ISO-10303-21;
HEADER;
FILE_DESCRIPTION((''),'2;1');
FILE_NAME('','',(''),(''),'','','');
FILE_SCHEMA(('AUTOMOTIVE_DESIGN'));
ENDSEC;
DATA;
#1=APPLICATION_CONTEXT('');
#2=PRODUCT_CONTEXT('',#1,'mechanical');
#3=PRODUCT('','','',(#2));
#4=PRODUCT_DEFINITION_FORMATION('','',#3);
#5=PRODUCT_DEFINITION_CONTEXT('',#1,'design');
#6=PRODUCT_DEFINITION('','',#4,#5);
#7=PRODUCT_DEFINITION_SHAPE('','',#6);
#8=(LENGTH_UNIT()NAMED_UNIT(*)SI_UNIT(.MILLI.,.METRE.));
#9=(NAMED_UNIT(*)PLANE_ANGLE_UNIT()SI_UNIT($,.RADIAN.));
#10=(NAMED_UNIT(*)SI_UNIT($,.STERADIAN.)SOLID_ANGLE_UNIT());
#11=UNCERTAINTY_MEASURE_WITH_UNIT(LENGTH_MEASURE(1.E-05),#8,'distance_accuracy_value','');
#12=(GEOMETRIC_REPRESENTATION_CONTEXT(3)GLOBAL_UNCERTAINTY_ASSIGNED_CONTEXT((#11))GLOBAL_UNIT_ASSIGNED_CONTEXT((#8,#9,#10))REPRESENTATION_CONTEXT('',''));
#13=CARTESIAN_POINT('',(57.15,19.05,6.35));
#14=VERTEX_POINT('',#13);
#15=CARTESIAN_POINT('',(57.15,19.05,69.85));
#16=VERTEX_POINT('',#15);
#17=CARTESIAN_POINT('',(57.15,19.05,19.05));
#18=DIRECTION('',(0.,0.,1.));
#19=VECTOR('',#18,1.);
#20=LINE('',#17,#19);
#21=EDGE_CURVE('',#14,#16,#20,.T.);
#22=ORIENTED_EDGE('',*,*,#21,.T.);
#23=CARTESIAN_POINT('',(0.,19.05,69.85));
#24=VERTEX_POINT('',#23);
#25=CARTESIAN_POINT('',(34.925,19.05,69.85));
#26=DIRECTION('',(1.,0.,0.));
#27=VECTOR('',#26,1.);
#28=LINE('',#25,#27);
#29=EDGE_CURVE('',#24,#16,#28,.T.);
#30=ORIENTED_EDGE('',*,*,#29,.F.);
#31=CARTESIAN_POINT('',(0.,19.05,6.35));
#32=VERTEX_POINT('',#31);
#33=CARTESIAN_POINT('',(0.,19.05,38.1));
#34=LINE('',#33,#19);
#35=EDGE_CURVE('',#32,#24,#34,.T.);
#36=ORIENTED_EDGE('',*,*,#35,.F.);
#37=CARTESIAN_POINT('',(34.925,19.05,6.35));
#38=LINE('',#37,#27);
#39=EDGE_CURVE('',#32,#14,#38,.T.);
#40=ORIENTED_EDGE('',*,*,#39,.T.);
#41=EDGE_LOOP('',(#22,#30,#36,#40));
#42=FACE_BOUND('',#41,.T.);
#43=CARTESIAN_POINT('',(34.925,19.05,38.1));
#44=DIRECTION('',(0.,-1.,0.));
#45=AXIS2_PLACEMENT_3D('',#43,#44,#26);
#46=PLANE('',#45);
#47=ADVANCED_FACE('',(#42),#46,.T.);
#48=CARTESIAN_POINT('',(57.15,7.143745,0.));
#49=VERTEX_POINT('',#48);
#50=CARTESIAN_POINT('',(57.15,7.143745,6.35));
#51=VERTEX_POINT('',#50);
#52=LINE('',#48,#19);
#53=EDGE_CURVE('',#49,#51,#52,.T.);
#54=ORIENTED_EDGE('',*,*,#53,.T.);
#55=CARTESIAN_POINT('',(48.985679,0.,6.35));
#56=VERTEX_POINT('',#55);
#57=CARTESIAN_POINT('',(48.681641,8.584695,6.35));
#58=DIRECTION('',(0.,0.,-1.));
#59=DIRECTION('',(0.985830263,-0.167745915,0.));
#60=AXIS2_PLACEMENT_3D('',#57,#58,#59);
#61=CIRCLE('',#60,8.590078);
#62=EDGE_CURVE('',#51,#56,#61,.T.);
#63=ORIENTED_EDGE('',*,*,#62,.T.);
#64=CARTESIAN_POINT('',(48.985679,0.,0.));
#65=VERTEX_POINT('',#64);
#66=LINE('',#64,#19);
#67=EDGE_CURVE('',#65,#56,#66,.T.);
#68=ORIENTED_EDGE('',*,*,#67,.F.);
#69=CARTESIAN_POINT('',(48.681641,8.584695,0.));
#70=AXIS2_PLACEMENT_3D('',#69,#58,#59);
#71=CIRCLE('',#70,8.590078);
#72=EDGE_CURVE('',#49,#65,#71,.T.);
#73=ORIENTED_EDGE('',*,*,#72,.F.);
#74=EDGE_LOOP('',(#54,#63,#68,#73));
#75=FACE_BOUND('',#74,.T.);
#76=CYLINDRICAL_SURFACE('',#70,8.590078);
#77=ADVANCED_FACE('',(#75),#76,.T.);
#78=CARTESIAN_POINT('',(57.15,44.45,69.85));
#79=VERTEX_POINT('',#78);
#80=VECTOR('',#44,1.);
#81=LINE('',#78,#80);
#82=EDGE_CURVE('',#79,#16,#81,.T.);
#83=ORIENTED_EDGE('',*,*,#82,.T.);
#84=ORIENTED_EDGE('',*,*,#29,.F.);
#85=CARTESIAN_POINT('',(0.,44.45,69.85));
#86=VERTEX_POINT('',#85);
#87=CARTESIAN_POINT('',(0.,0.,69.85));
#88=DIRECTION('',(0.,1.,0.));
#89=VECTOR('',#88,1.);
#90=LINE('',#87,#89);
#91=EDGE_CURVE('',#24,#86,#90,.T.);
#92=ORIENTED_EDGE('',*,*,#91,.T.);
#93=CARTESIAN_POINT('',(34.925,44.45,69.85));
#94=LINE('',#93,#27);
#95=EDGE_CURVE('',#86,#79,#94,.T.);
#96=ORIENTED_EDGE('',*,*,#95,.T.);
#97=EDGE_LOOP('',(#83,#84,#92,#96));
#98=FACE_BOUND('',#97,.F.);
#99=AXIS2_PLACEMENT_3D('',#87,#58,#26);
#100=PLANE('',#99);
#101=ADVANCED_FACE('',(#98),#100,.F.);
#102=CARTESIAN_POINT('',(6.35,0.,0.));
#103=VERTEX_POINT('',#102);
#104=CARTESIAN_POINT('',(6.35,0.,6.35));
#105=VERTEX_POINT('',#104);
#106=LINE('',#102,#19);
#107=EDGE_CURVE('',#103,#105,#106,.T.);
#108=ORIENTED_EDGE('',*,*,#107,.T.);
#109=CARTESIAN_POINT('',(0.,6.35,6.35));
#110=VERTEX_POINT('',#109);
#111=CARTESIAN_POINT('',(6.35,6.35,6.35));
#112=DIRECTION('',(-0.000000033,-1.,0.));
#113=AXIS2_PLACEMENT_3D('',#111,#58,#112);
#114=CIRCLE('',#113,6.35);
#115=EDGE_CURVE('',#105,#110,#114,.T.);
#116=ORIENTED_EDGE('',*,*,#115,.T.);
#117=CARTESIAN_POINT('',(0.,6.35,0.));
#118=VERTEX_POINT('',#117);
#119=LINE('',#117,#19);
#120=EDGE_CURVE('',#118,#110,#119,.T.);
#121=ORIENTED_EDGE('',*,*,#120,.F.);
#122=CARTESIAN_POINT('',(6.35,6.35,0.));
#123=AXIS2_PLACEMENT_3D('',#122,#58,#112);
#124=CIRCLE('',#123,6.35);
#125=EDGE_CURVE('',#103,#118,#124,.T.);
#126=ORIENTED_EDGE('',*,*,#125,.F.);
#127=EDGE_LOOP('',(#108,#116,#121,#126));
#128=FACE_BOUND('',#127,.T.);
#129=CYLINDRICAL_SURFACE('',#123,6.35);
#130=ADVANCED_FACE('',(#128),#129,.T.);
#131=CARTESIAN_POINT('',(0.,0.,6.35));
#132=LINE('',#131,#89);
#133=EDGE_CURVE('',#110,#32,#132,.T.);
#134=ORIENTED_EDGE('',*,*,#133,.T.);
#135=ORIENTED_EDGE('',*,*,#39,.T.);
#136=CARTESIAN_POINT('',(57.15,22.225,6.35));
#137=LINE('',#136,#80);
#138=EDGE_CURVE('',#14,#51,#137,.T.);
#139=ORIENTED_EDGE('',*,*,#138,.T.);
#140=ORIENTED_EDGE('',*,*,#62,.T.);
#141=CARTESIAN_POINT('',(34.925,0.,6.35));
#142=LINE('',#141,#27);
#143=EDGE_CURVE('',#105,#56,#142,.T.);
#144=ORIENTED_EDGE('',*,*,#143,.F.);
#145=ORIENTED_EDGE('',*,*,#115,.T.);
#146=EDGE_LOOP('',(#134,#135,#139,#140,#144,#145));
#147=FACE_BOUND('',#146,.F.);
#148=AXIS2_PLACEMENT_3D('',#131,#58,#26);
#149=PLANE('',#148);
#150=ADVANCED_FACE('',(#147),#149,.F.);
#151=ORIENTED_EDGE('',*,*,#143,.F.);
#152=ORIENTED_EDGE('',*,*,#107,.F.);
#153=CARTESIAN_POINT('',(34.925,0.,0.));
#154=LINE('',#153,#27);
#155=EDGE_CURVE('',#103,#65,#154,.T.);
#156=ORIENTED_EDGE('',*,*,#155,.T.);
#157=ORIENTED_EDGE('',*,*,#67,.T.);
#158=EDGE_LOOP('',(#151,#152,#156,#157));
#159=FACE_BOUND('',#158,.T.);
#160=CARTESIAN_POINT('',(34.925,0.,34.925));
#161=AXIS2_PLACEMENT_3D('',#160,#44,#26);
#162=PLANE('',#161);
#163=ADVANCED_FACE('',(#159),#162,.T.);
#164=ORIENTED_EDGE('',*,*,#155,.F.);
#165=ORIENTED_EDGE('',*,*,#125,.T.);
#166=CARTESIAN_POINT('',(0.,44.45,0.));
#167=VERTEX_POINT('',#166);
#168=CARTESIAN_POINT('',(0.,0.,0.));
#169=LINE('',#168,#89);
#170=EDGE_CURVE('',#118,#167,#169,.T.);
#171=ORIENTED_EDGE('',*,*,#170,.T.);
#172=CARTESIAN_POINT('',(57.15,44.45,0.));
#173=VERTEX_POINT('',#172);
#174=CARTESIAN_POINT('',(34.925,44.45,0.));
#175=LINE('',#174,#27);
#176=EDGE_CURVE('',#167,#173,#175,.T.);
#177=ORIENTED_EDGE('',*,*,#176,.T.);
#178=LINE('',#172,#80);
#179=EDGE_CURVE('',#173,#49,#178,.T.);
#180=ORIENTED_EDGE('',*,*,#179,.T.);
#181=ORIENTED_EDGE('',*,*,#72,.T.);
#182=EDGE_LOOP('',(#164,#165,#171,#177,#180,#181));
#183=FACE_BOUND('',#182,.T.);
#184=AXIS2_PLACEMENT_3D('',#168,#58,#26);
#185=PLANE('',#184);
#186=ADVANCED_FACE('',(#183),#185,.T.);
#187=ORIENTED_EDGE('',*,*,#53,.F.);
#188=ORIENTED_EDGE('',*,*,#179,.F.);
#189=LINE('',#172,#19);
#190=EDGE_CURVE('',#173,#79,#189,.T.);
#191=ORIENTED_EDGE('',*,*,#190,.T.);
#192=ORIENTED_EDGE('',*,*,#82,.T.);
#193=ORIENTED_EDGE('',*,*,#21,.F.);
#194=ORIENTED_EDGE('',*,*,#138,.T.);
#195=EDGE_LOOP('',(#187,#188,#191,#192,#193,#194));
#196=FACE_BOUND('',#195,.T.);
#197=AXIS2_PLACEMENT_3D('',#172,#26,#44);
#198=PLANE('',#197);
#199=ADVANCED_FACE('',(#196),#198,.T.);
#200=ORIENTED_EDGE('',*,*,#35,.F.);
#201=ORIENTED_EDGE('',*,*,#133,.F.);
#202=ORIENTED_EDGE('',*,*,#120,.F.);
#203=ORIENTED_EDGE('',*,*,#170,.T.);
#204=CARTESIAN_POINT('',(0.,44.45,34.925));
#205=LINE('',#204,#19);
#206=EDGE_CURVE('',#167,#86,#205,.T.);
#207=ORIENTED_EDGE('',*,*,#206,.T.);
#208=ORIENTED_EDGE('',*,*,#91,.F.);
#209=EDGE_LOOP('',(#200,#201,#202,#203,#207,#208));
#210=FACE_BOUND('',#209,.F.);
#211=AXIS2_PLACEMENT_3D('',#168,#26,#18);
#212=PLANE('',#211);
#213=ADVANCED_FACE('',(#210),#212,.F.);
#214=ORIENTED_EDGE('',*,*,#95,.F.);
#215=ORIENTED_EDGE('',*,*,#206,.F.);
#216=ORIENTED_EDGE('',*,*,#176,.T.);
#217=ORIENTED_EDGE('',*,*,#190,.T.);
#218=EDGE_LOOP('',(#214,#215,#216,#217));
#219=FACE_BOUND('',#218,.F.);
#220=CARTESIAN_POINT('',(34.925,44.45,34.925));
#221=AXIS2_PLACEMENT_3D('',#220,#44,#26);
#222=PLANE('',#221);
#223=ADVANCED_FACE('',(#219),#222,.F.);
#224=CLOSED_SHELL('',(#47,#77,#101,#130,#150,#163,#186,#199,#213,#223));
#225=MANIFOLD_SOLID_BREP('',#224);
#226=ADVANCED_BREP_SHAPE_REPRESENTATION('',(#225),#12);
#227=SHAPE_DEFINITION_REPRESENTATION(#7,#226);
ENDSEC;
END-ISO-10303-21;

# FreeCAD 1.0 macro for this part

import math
import FreeCAD as App
import Part
import Sketcher
Q = App.Units.Quantity


def add_polygon(sketch, points):
    """Adds a closed chain of lines whose ends are joined by coincident constraints."""
    first, n = sketch.GeometryCount, len(points)
    for a, b in zip(points, points[1:] + points[:1]):
        sketch.addGeometry(Part.LineSegment(App.Vector(*a, 0), App.Vector(*b, 0)), False)
    for i in range(n):
        sketch.addConstraint(Sketcher.Constraint("Coincident", first + i, 2, first + (i + 1) % n, 1))

doc = App.newDocument("Part")
body = doc.addObject("PartDesign::Body", "Body")

# Sketch on XZ plane
sketch1 = doc.addObject("Sketcher::SketchObject", "Sketch")
body.addObject(sketch1)
sketch1.AttachmentSupport = (doc.XZ_Plane, [""])
sketch1.MapMode = "FlatFace"
add_polygon(sketch1, [(0, 70), (0, 0), (70, 0), (70, 70)])  # lines 0-3
sketch1.addConstraint([
    Sketcher.Constraint("Vertical", 0),
    Sketcher.Constraint("Horizontal", 1),
    Sketcher.Constraint("Vertical", 2),
    Sketcher.Constraint("Horizontal", 3),
    Sketcher.Constraint("Coincident", 0, 2, -1, 1),
    Sketcher.Constraint("Equal", 3, 0),
    Sketcher.Constraint("DistanceX", 1, 1, 1, 2, Q("2.75 in")),
])
pad1 = doc.addObject("PartDesign::Pad", "Pad")
body.addObject(pad1)
pad1.Profile = sketch1
pad1.Length = Q("1.75 in")
pad1.Reversed = True

# Sketch on XZ plane
sketch2 = doc.addObject("Sketcher::SketchObject", "Sketch001")
body.addObject(sketch2)
sketch2.AttachmentSupport = (doc.XZ_Plane, [""])
sketch2.MapMode = "FlatFace"
add_polygon(sketch2, [(0, 70), (0, 6), (70, 6), (70, 70)])  # lines 0-3
sketch2.addConstraint([
    Sketcher.Constraint("Vertical", 0),
    Sketcher.Constraint("Horizontal", 1),
    Sketcher.Constraint("Vertical", 2),
    Sketcher.Constraint("Horizontal", 3),
    Sketcher.Constraint("PointOnObject", 0, 2, -2),
    Sketcher.Constraint("DistanceY", 0, 2, 0, 1, Q("2.5 in")),
    Sketcher.Constraint("DistanceX", 1, 1, 1, 2, Q("2.75 in")),
    Sketcher.Constraint("DistanceY", -1, 1, 0, 2, Q("0.25 in")),
])
pocket1 = doc.addObject("PartDesign::Pocket", "Pocket")
body.addObject(pocket1)
pocket1.Profile = sketch2
pocket1.Length = Q("0.75 in")

# Sketch on XY plane
sketch3 = doc.addObject("Sketcher::SketchObject", "Sketch002")
body.addObject(sketch3)
sketch3.AttachmentSupport = (doc.XY_Plane, [""])
sketch3.MapMode = "FlatFace"
sketch3.addGeometry([
    Part.ArcOfCircle(Part.Circle(App.Vector(49, 9, 0), App.Vector(0, 0, 1), 9), math.radians(-88), math.radians(-10)),  # 0
    Part.LineSegment(App.Vector(49, 0, 0), App.Vector(70, 0, 0)),  # 1
    Part.LineSegment(App.Vector(70, 0, 0), App.Vector(70, 44, 0)),  # 2
    Part.LineSegment(App.Vector(70, 44, 0), App.Vector(57, 44, 0)),  # 3
    Part.LineSegment(App.Vector(57, 44, 0), App.Vector(57, 7, 0)),  # 4
], False)
sketch3.addConstraint([
    Sketcher.Constraint("Coincident", 0, 1, 1, 1),
    Sketcher.Constraint("Coincident", 1, 2, 2, 1),
    Sketcher.Constraint("Coincident", 2, 2, 3, 1),
    Sketcher.Constraint("Coincident", 3, 2, 4, 1),
    Sketcher.Constraint("Coincident", 4, 2, 0, 2),
    Sketcher.Constraint("Horizontal", 1),
    Sketcher.Constraint("Vertical", 2),
    Sketcher.Constraint("Horizontal", 3),
    Sketcher.Constraint("Vertical", 4),
    Sketcher.Constraint("PointOnObject", 0, 1, -1),
    Sketcher.Constraint("DistanceX", 3, 2, 3, 1, Q("0.5 in")),
    Sketcher.Constraint("DistanceY", 2, 1, 2, 2, Q("1.75 in")),
    Sketcher.Constraint("DistanceX", -1, 1, 1, 2, Q("2.75 in")),
    Sketcher.Constraint("DistanceX", -1, 1, 0, 3, Q("1.9166001 in")),
    Sketcher.Constraint("Radius", 0, Q("8.590078 mm")),
    Sketcher.Constraint("DistanceX", 1, 1, 1, 2, Q("20.864321 mm")),
])
pocket2 = doc.addObject("PartDesign::Pocket", "Pocket001")
body.addObject(pocket2)
pocket2.Profile = sketch3
pocket2.Length = Q("2.75 in")
pocket2.Reversed = True

# Sketch on XY plane
sketch4 = doc.addObject("Sketcher::SketchObject", "Sketch003")
body.addObject(sketch4)
sketch4.AttachmentSupport = (doc.XY_Plane, [""])
sketch4.MapMode = "FlatFace"
sketch4.addGeometry([
    Part.ArcOfCircle(Part.Circle(App.Vector(6, 6, 0), App.Vector(0, 0, 1), 6), math.radians(-180), math.radians(-90)),
    Part.LineSegment(App.Vector(0, 6, 0), App.Vector(0, 0, 0)),
    Part.LineSegment(App.Vector(0, 0, 0), App.Vector(6, 0, 0)),
], False)
sketch4.addConstraint([
    Sketcher.Constraint("Tangent", 0, 1, 1, 1),
    Sketcher.Constraint("Coincident", 1, 2, 2, 1),
    Sketcher.Constraint("Tangent", 2, 2, 0, 2),
    Sketcher.Constraint("Vertical", 1),
    Sketcher.Constraint("Horizontal", 2),
    Sketcher.Constraint("Coincident", 1, 2, -1, 1),
    Sketcher.Constraint("Radius", 0, Q("0.25 in")),
])
pocket3 = doc.addObject("PartDesign::Pocket", "Pocket002")
body.addObject(pocket3)
pocket3.Profile = sketch4
pocket3.Length = Q("1 in")
pocket3.Reversed = True

doc.recompute()
